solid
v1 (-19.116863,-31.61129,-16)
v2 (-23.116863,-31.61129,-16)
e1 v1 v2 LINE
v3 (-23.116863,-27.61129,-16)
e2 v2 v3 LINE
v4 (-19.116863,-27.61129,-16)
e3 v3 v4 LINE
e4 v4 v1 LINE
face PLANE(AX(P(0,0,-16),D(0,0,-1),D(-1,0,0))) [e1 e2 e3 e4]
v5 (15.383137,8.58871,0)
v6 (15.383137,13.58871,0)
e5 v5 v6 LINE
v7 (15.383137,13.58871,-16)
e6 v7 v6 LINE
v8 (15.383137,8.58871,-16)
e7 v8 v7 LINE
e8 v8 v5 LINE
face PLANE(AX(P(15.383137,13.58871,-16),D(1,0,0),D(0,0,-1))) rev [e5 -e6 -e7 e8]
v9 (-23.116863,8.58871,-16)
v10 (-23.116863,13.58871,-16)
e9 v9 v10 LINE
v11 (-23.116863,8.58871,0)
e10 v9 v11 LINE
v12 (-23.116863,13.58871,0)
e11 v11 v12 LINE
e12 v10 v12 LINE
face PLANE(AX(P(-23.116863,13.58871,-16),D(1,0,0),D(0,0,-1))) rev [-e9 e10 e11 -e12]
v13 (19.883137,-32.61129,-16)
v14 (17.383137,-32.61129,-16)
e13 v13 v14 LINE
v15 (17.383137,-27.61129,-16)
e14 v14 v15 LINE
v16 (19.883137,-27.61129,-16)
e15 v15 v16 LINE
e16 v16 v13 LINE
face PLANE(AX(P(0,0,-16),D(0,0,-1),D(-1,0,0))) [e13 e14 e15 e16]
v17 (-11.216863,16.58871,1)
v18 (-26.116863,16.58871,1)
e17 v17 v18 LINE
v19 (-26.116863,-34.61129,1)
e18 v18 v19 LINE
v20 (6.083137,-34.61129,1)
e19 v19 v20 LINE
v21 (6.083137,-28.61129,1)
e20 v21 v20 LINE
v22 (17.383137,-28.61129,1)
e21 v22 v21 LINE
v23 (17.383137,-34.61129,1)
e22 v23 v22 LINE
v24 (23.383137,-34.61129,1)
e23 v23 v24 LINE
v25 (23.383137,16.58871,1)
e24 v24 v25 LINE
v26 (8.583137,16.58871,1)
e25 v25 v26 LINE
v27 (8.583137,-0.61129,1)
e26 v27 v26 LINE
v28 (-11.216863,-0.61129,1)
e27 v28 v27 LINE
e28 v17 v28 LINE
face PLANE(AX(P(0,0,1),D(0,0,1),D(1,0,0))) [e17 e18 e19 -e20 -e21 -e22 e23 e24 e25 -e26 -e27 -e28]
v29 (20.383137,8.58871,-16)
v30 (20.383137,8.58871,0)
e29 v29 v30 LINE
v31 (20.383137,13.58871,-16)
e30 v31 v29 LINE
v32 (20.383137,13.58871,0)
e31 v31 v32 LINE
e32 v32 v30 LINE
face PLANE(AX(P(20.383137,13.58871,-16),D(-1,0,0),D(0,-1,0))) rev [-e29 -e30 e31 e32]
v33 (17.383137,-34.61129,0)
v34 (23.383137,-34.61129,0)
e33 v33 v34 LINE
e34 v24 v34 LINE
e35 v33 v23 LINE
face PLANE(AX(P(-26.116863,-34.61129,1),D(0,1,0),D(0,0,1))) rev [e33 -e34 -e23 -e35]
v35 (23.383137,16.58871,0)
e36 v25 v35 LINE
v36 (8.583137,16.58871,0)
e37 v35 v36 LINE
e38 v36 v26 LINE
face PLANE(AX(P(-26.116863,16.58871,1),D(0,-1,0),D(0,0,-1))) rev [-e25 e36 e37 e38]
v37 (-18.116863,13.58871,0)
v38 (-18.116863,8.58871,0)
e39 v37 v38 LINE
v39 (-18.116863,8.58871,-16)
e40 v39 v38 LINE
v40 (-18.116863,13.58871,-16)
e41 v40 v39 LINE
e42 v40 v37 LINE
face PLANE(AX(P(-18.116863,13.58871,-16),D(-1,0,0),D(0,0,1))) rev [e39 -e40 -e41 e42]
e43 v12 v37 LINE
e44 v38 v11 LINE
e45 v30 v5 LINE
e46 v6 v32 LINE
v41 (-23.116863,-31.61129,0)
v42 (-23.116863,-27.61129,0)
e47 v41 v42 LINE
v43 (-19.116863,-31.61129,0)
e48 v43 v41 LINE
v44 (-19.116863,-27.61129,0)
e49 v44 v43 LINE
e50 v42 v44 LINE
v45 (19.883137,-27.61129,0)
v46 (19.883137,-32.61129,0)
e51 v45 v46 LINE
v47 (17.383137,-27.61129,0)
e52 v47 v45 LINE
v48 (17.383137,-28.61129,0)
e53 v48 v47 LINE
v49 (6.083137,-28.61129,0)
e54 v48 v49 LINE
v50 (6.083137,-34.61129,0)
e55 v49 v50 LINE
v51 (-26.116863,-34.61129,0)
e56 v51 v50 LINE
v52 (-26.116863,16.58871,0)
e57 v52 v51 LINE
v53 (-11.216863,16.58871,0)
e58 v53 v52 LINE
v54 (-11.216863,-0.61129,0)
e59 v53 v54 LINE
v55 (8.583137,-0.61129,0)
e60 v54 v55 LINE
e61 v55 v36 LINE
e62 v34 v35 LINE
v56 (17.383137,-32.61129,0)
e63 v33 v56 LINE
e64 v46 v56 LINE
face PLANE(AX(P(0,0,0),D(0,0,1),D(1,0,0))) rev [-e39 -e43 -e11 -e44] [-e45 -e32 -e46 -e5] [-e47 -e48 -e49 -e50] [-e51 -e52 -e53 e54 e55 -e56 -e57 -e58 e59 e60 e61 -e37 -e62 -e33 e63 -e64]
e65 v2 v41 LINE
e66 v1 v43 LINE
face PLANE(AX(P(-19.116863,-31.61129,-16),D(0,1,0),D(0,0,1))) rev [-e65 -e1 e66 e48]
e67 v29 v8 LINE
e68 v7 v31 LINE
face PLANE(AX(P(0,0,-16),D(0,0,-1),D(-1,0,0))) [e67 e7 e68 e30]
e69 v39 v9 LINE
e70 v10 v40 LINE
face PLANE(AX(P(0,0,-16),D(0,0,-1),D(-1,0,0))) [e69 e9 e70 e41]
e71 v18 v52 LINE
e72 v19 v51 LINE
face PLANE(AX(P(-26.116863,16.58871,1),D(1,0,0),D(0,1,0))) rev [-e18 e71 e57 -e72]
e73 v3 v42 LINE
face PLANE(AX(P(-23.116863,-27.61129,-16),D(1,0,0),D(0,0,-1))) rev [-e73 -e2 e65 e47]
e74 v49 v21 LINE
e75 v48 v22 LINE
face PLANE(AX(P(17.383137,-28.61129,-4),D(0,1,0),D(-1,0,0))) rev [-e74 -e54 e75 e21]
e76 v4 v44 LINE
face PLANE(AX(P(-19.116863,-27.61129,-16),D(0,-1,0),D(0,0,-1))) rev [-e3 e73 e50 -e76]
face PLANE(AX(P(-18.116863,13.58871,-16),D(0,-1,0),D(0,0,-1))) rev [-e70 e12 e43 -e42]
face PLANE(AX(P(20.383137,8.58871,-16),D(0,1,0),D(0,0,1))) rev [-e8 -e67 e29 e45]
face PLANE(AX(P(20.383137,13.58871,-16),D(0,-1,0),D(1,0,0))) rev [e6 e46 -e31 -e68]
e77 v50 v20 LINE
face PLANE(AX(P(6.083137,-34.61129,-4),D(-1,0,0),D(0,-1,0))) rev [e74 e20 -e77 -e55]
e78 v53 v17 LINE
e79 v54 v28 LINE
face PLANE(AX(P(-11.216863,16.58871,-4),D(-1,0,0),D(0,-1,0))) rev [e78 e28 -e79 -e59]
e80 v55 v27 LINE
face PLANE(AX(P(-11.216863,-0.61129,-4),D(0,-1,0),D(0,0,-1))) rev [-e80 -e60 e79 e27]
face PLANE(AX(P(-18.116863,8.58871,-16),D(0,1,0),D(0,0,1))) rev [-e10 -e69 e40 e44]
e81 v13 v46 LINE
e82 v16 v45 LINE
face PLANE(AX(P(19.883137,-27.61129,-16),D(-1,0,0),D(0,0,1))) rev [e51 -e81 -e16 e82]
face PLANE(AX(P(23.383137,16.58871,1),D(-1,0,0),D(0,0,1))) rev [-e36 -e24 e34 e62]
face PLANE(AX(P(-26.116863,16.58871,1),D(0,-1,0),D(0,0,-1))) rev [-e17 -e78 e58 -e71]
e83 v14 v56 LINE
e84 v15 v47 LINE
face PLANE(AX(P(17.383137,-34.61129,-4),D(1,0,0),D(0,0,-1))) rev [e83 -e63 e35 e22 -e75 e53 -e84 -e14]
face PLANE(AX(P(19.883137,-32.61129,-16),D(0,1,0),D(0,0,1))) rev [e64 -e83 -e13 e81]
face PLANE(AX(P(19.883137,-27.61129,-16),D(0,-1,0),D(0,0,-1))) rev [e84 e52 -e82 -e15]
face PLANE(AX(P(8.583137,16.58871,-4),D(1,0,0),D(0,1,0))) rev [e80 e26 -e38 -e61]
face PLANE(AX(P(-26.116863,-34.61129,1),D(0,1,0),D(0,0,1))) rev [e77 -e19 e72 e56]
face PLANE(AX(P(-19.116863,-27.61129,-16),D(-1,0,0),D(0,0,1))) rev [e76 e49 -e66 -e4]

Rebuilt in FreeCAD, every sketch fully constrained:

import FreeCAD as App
import Part
import Sketcher
from FreeCAD import Vector
Q = App.Units.Quantity

doc = App.newDocument("Part")
body = doc.addObject("PartDesign::Body", "Body")

# Sketch on XY plane
sketch1 = body.newObject("Sketcher::SketchObject", "Sketch")
sketch1.AttachmentSupport = (doc.getObject("XY_Plane"), [""])
sketch1.MapMode = "FlatFace"
sketch1.addGeometry(Part.LineSegment(Vector(-26.116863, 16.58871, 0), Vector(-26.116863, -34.61129, 0)), False)
sketch1.addGeometry(Part.LineSegment(Vector(-26.116863, -34.61129, 0), Vector(23.383137, -34.61129, 0)), False)
sketch1.addGeometry(Part.LineSegment(Vector(23.383137, -34.61129, 0), Vector(23.383137, 16.58871, 0)), False)
sketch1.addGeometry(Part.LineSegment(Vector(23.383137, 16.58871, 0), Vector(-26.116863, 16.58871, 0)), False)
sketch1.addConstraint(Sketcher.Constraint("Coincident", 0, 2, 1, 1))
sketch1.addConstraint(Sketcher.Constraint("Coincident", 1, 2, 2, 1))
sketch1.addConstraint(Sketcher.Constraint("Coincident", 2, 2, 3, 1))
sketch1.addConstraint(Sketcher.Constraint("Coincident", 3, 2, 0, 1))
sketch1.addConstraint(Sketcher.Constraint("Vertical", 0))
sketch1.addConstraint(Sketcher.Constraint("Horizontal", 1))
sketch1.addConstraint(Sketcher.Constraint("Vertical", 2))
sketch1.addConstraint(Sketcher.Constraint("Horizontal", 3))
sketch1.addConstraint(Sketcher.Constraint("DistanceX", 1, 1, 1, 2, Q("49.5 mm")))
sketch1.addConstraint(Sketcher.Constraint("DistanceY", 0, 2, 0, 1, Q("51.2 mm")))
sketch1.addConstraint(Sketcher.Constraint("DistanceY", 0, 2, -1, 1, Q("34.61129 mm")))
sketch1.addConstraint(Sketcher.Constraint("DistanceX", 0, 2, -1, 1, Q("26.116863 mm")))
pad1 = body.newObject("PartDesign::Pad", "Pad")
pad1.Profile = sketch1
pad1.Length = 1

# Sketch on XY plane
sketch2 = body.newObject("Sketcher::SketchObject", "Sketch001")
sketch2.AttachmentSupport = (doc.getObject("XY_Plane"), [""])
sketch2.MapMode = "FlatFace"
sketch2.AttachmentOffset = App.Placement(Vector(0, 0, 1), App.Rotation())
sketch2.addGeometry(Part.LineSegment(Vector(6.083137, -28.61129, 0), Vector(6.083137, -34.61129, 0)), False)
sketch2.addGeometry(Part.LineSegment(Vector(6.083137, -34.61129, 0), Vector(17.383137, -34.61129, 0)), False)
sketch2.addGeometry(Part.LineSegment(Vector(17.383137, -34.61129, 0), Vector(17.383137, -28.61129, 0)), False)
sketch2.addGeometry(Part.LineSegment(Vector(17.383137, -28.61129, 0), Vector(6.083137, -28.61129, 0)), False)
sketch2.addGeometry(Part.LineSegment(Vector(-11.216863, 16.58871, 0), Vector(-11.216863, -0.61129, 0)), False)
sketch2.addGeometry(Part.LineSegment(Vector(-11.216863, -0.61129, 0), Vector(8.583137, -0.61129, 0)), False)
sketch2.addGeometry(Part.LineSegment(Vector(8.583137, -0.61129, 0), Vector(8.583137, 16.58871, 0)), False)
sketch2.addGeometry(Part.LineSegment(Vector(8.583137, 16.58871, 0), Vector(-11.216863, 16.58871, 0)), False)
sketch2.addConstraint(Sketcher.Constraint("Coincident", 0, 2, 1, 1))
sketch2.addConstraint(Sketcher.Constraint("Coincident", 1, 2, 2, 1))
sketch2.addConstraint(Sketcher.Constraint("Coincident", 2, 2, 3, 1))
sketch2.addConstraint(Sketcher.Constraint("Coincident", 3, 2, 0, 1))
sketch2.addConstraint(Sketcher.Constraint("Coincident", 4, 2, 5, 1))
sketch2.addConstraint(Sketcher.Constraint("Coincident", 5, 2, 6, 1))
sketch2.addConstraint(Sketcher.Constraint("Coincident", 6, 2, 7, 1))
sketch2.addConstraint(Sketcher.Constraint("Coincident", 7, 2, 4, 1))
sketch2.addConstraint(Sketcher.Constraint("Vertical", 0))
sketch2.addConstraint(Sketcher.Constraint("Horizontal", 1))
sketch2.addConstraint(Sketcher.Constraint("Vertical", 2))
sketch2.addConstraint(Sketcher.Constraint("Horizontal", 3))
sketch2.addConstraint(Sketcher.Constraint("Vertical", 4))
sketch2.addConstraint(Sketcher.Constraint("Horizontal", 5))
sketch2.addConstraint(Sketcher.Constraint("Vertical", 6))
sketch2.addConstraint(Sketcher.Constraint("Horizontal", 7))
sketch2.addConstraint(Sketcher.Constraint("DistanceY", 0, 2, 0, 1, Q("6 mm")))
sketch2.addConstraint(Sketcher.Constraint("DistanceX", 1, 1, 1, 2, Q("11.3 mm")))
sketch2.addConstraint(Sketcher.Constraint("DistanceX", 5, 1, 5, 2, Q("19.8 mm")))
sketch2.addConstraint(Sketcher.Constraint("DistanceY", 4, 2, 4, 1, Q("17.2 mm")))
sketch2.addConstraint(Sketcher.Constraint("DistanceY", 3, 2, 4, 2, Q("28 mm")))
sketch2.addConstraint(Sketcher.Constraint("DistanceX", 4, 2, 3, 2, Q("17.3 mm")))
sketch2.addConstraint(Sketcher.Constraint("DistanceY", 0, 2, -1, 1, Q("34.61129 mm")))
sketch2.addConstraint(Sketcher.Constraint("DistanceX", -1, 1, 0, 2, Q("6.083137 mm")))
pocket1 = body.newObject("PartDesign::Pocket", "Pocket")
pocket1.Profile = sketch2
pocket1.Length = 5

# Sketch on XY plane
sketch3 = body.newObject("Sketcher::SketchObject", "Sketch002")
sketch3.AttachmentSupport = (doc.getObject("XY_Plane"), [""])
sketch3.MapMode = "FlatFace"
sketch3.addGeometry(Part.LineSegment(Vector(-18.116863, 13.58871, 0), Vector(-18.116863, 8.58871, 0)), False)
sketch3.addGeometry(Part.LineSegment(Vector(-18.116863, 8.58871, 0), Vector(-23.116863, 8.58871, 0)), False)
sketch3.addGeometry(Part.LineSegment(Vector(-23.116863, 8.58871, 0), Vector(-23.116863, 13.58871, 0)), False)
sketch3.addGeometry(Part.LineSegment(Vector(-23.116863, 13.58871, 0), Vector(-18.116863, 13.58871, 0)), False)
sketch3.addConstraint(Sketcher.Constraint("Coincident", 0, 2, 1, 1))
sketch3.addConstraint(Sketcher.Constraint("Coincident", 1, 2, 2, 1))
sketch3.addConstraint(Sketcher.Constraint("Coincident", 2, 2, 3, 1))
sketch3.addConstraint(Sketcher.Constraint("Coincident", 3, 2, 0, 1))
sketch3.addConstraint(Sketcher.Constraint("Vertical", 0))
sketch3.addConstraint(Sketcher.Constraint("Horizontal", 1))
sketch3.addConstraint(Sketcher.Constraint("Vertical", 2))
sketch3.addConstraint(Sketcher.Constraint("Horizontal", 3))
sketch3.addConstraint(Sketcher.Constraint("Equal", 3, 0))
sketch3.addConstraint(Sketcher.Constraint("DistanceX", 1, 2, 1, 1, Q("5 mm")))
sketch3.addConstraint(Sketcher.Constraint("DistanceY", -1, 1, 0, 2, Q("8.58871 mm")))
sketch3.addConstraint(Sketcher.Constraint("DistanceX", 0, 2, -1, 1, Q("18.116863 mm")))
pad2 = body.newObject("PartDesign::Pad", "Pad001")
pad2.Profile = sketch3
pad2.Length = 16
pad2.Reversed = True

# Sketch on XY plane
sketch4 = body.newObject("Sketcher::SketchObject", "Sketch003")
sketch4.AttachmentSupport = (doc.getObject("XY_Plane"), [""])
sketch4.MapMode = "FlatFace"
sketch4.addGeometry(Part.LineSegment(Vector(19.883137, -27.61129, 0), Vector(19.883137, -32.61129, 0)), False)
sketch4.addGeometry(Part.LineSegment(Vector(19.883137, -32.61129, 0), Vector(17.383137, -32.61129, 0)), False)
sketch4.addGeometry(Part.LineSegment(Vector(17.383137, -32.61129, 0), Vector(17.383137, -27.61129, 0)), False)
sketch4.addGeometry(Part.LineSegment(Vector(17.383137, -27.61129, 0), Vector(19.883137, -27.61129, 0)), False)
sketch4.addConstraint(Sketcher.Constraint("Coincident", 0, 2, 1, 1))
sketch4.addConstraint(Sketcher.Constraint("Coincident", 1, 2, 2, 1))
sketch4.addConstraint(Sketcher.Constraint("Coincident", 2, 2, 3, 1))
sketch4.addConstraint(Sketcher.Constraint("Coincident", 3, 2, 0, 1))
sketch4.addConstraint(Sketcher.Constraint("Vertical", 0))
sketch4.addConstraint(Sketcher.Constraint("Horizontal", 1))
sketch4.addConstraint(Sketcher.Constraint("Vertical", 2))
sketch4.addConstraint(Sketcher.Constraint("Horizontal", 3))
sketch4.addConstraint(Sketcher.Constraint("DistanceY", 0, 2, 0, 1, Q("5 mm")))
sketch4.addConstraint(Sketcher.Constraint("DistanceX", 1, 2, 1, 1, Q("2.5 mm")))
sketch4.addConstraint(Sketcher.Constraint("DistanceY", 0, 2, -1, 1, Q("32.61129 mm")))
sketch4.addConstraint(Sketcher.Constraint("DistanceX", -1, 1, 0, 2, Q("19.883137 mm")))
pad3 = body.newObject("PartDesign::Pad", "Pad002")
pad3.Profile = sketch4
pad3.Length = 16
pad3.Reversed = True

# Sketch on XY plane
sketch5 = body.newObject("Sketcher::SketchObject", "Sketch004")
sketch5.AttachmentSupport = (doc.getObject("XY_Plane"), [""])
sketch5.MapMode = "FlatFace"
sketch5.addGeometry(Part.LineSegment(Vector(20.383137, 13.58871, 0), Vector(20.383137, 8.58871, 0)), False)
sketch5.addGeometry(Part.LineSegment(Vector(20.383137, 8.58871, 0), Vector(15.383137, 8.58871, 0)), False)
sketch5.addGeometry(Part.LineSegment(Vector(15.383137, 8.58871, 0), Vector(15.383137, 13.58871, 0)), False)
sketch5.addGeometry(Part.LineSegment(Vector(15.383137, 13.58871, 0), Vector(20.383137, 13.58871, 0)), False)
sketch5.addConstraint(Sketcher.Constraint("Coincident", 0, 2, 1, 1))
sketch5.addConstraint(Sketcher.Constraint("Coincident", 1, 2, 2, 1))
sketch5.addConstraint(Sketcher.Constraint("Coincident", 2, 2, 3, 1))
sketch5.addConstraint(Sketcher.Constraint("Coincident", 3, 2, 0, 1))
sketch5.addConstraint(Sketcher.Constraint("Vertical", 0))
sketch5.addConstraint(Sketcher.Constraint("Horizontal", 1))
sketch5.addConstraint(Sketcher.Constraint("Vertical", 2))
sketch5.addConstraint(Sketcher.Constraint("Horizontal", 3))
sketch5.addConstraint(Sketcher.Constraint("Equal", 3, 0))
sketch5.addConstraint(Sketcher.Constraint("DistanceX", 1, 2, 1, 1, Q("5 mm")))
sketch5.addConstraint(Sketcher.Constraint("DistanceY", -1, 1, 0, 2, Q("8.58871 mm")))
sketch5.addConstraint(Sketcher.Constraint("DistanceX", -1, 1, 0, 2, Q("20.383137 mm")))
pad4 = body.newObject("PartDesign::Pad", "Pad003")
pad4.Profile = sketch5
pad4.Length = 16
pad4.Reversed = True

# Sketch on XY plane
sketch6 = body.newObject("Sketcher::SketchObject", "Sketch005")
sketch6.AttachmentSupport = (doc.getObject("XY_Plane"), [""])
sketch6.MapMode = "FlatFace"
sketch6.addGeometry(Part.LineSegment(Vector(-19.116863, -27.61129, 0), Vector(-19.116863, -31.61129, 0)), False)
sketch6.addGeometry(Part.LineSegment(Vector(-19.116863, -31.61129, 0), Vector(-23.116863, -31.61129, 0)), False)
sketch6.addGeometry(Part.LineSegment(Vector(-23.116863, -31.61129, 0), Vector(-23.116863, -27.61129, 0)), False)
sketch6.addGeometry(Part.LineSegment(Vector(-23.116863, -27.61129, 0), Vector(-19.116863, -27.61129, 0)), False)
sketch6.addConstraint(Sketcher.Constraint("Coincident", 0, 2, 1, 1))
sketch6.addConstraint(Sketcher.Constraint("Coincident", 1, 2, 2, 1))
sketch6.addConstraint(Sketcher.Constraint("Coincident", 2, 2, 3, 1))
sketch6.addConstraint(Sketcher.Constraint("Coincident", 3, 2, 0, 1))
sketch6.addConstraint(Sketcher.Constraint("Vertical", 0))
sketch6.addConstraint(Sketcher.Constraint("Horizontal", 1))
sketch6.addConstraint(Sketcher.Constraint("Vertical", 2))
sketch6.addConstraint(Sketcher.Constraint("Horizontal", 3))
sketch6.addConstraint(Sketcher.Constraint("Equal", 3, 0))
sketch6.addConstraint(Sketcher.Constraint("DistanceX", 1, 2, 1, 1, Q("4 mm")))
sketch6.addConstraint(Sketcher.Constraint("DistanceY", 0, 2, -1, 1, Q("31.61129 mm")))
sketch6.addConstraint(Sketcher.Constraint("DistanceX", 0, 2, -1, 1, Q("19.116863 mm")))
pad5 = body.newObject("PartDesign::Pad", "Pad004")
pad5.Profile = sketch6
pad5.Length = 16
pad5.Reversed = True

doc.recompute()
